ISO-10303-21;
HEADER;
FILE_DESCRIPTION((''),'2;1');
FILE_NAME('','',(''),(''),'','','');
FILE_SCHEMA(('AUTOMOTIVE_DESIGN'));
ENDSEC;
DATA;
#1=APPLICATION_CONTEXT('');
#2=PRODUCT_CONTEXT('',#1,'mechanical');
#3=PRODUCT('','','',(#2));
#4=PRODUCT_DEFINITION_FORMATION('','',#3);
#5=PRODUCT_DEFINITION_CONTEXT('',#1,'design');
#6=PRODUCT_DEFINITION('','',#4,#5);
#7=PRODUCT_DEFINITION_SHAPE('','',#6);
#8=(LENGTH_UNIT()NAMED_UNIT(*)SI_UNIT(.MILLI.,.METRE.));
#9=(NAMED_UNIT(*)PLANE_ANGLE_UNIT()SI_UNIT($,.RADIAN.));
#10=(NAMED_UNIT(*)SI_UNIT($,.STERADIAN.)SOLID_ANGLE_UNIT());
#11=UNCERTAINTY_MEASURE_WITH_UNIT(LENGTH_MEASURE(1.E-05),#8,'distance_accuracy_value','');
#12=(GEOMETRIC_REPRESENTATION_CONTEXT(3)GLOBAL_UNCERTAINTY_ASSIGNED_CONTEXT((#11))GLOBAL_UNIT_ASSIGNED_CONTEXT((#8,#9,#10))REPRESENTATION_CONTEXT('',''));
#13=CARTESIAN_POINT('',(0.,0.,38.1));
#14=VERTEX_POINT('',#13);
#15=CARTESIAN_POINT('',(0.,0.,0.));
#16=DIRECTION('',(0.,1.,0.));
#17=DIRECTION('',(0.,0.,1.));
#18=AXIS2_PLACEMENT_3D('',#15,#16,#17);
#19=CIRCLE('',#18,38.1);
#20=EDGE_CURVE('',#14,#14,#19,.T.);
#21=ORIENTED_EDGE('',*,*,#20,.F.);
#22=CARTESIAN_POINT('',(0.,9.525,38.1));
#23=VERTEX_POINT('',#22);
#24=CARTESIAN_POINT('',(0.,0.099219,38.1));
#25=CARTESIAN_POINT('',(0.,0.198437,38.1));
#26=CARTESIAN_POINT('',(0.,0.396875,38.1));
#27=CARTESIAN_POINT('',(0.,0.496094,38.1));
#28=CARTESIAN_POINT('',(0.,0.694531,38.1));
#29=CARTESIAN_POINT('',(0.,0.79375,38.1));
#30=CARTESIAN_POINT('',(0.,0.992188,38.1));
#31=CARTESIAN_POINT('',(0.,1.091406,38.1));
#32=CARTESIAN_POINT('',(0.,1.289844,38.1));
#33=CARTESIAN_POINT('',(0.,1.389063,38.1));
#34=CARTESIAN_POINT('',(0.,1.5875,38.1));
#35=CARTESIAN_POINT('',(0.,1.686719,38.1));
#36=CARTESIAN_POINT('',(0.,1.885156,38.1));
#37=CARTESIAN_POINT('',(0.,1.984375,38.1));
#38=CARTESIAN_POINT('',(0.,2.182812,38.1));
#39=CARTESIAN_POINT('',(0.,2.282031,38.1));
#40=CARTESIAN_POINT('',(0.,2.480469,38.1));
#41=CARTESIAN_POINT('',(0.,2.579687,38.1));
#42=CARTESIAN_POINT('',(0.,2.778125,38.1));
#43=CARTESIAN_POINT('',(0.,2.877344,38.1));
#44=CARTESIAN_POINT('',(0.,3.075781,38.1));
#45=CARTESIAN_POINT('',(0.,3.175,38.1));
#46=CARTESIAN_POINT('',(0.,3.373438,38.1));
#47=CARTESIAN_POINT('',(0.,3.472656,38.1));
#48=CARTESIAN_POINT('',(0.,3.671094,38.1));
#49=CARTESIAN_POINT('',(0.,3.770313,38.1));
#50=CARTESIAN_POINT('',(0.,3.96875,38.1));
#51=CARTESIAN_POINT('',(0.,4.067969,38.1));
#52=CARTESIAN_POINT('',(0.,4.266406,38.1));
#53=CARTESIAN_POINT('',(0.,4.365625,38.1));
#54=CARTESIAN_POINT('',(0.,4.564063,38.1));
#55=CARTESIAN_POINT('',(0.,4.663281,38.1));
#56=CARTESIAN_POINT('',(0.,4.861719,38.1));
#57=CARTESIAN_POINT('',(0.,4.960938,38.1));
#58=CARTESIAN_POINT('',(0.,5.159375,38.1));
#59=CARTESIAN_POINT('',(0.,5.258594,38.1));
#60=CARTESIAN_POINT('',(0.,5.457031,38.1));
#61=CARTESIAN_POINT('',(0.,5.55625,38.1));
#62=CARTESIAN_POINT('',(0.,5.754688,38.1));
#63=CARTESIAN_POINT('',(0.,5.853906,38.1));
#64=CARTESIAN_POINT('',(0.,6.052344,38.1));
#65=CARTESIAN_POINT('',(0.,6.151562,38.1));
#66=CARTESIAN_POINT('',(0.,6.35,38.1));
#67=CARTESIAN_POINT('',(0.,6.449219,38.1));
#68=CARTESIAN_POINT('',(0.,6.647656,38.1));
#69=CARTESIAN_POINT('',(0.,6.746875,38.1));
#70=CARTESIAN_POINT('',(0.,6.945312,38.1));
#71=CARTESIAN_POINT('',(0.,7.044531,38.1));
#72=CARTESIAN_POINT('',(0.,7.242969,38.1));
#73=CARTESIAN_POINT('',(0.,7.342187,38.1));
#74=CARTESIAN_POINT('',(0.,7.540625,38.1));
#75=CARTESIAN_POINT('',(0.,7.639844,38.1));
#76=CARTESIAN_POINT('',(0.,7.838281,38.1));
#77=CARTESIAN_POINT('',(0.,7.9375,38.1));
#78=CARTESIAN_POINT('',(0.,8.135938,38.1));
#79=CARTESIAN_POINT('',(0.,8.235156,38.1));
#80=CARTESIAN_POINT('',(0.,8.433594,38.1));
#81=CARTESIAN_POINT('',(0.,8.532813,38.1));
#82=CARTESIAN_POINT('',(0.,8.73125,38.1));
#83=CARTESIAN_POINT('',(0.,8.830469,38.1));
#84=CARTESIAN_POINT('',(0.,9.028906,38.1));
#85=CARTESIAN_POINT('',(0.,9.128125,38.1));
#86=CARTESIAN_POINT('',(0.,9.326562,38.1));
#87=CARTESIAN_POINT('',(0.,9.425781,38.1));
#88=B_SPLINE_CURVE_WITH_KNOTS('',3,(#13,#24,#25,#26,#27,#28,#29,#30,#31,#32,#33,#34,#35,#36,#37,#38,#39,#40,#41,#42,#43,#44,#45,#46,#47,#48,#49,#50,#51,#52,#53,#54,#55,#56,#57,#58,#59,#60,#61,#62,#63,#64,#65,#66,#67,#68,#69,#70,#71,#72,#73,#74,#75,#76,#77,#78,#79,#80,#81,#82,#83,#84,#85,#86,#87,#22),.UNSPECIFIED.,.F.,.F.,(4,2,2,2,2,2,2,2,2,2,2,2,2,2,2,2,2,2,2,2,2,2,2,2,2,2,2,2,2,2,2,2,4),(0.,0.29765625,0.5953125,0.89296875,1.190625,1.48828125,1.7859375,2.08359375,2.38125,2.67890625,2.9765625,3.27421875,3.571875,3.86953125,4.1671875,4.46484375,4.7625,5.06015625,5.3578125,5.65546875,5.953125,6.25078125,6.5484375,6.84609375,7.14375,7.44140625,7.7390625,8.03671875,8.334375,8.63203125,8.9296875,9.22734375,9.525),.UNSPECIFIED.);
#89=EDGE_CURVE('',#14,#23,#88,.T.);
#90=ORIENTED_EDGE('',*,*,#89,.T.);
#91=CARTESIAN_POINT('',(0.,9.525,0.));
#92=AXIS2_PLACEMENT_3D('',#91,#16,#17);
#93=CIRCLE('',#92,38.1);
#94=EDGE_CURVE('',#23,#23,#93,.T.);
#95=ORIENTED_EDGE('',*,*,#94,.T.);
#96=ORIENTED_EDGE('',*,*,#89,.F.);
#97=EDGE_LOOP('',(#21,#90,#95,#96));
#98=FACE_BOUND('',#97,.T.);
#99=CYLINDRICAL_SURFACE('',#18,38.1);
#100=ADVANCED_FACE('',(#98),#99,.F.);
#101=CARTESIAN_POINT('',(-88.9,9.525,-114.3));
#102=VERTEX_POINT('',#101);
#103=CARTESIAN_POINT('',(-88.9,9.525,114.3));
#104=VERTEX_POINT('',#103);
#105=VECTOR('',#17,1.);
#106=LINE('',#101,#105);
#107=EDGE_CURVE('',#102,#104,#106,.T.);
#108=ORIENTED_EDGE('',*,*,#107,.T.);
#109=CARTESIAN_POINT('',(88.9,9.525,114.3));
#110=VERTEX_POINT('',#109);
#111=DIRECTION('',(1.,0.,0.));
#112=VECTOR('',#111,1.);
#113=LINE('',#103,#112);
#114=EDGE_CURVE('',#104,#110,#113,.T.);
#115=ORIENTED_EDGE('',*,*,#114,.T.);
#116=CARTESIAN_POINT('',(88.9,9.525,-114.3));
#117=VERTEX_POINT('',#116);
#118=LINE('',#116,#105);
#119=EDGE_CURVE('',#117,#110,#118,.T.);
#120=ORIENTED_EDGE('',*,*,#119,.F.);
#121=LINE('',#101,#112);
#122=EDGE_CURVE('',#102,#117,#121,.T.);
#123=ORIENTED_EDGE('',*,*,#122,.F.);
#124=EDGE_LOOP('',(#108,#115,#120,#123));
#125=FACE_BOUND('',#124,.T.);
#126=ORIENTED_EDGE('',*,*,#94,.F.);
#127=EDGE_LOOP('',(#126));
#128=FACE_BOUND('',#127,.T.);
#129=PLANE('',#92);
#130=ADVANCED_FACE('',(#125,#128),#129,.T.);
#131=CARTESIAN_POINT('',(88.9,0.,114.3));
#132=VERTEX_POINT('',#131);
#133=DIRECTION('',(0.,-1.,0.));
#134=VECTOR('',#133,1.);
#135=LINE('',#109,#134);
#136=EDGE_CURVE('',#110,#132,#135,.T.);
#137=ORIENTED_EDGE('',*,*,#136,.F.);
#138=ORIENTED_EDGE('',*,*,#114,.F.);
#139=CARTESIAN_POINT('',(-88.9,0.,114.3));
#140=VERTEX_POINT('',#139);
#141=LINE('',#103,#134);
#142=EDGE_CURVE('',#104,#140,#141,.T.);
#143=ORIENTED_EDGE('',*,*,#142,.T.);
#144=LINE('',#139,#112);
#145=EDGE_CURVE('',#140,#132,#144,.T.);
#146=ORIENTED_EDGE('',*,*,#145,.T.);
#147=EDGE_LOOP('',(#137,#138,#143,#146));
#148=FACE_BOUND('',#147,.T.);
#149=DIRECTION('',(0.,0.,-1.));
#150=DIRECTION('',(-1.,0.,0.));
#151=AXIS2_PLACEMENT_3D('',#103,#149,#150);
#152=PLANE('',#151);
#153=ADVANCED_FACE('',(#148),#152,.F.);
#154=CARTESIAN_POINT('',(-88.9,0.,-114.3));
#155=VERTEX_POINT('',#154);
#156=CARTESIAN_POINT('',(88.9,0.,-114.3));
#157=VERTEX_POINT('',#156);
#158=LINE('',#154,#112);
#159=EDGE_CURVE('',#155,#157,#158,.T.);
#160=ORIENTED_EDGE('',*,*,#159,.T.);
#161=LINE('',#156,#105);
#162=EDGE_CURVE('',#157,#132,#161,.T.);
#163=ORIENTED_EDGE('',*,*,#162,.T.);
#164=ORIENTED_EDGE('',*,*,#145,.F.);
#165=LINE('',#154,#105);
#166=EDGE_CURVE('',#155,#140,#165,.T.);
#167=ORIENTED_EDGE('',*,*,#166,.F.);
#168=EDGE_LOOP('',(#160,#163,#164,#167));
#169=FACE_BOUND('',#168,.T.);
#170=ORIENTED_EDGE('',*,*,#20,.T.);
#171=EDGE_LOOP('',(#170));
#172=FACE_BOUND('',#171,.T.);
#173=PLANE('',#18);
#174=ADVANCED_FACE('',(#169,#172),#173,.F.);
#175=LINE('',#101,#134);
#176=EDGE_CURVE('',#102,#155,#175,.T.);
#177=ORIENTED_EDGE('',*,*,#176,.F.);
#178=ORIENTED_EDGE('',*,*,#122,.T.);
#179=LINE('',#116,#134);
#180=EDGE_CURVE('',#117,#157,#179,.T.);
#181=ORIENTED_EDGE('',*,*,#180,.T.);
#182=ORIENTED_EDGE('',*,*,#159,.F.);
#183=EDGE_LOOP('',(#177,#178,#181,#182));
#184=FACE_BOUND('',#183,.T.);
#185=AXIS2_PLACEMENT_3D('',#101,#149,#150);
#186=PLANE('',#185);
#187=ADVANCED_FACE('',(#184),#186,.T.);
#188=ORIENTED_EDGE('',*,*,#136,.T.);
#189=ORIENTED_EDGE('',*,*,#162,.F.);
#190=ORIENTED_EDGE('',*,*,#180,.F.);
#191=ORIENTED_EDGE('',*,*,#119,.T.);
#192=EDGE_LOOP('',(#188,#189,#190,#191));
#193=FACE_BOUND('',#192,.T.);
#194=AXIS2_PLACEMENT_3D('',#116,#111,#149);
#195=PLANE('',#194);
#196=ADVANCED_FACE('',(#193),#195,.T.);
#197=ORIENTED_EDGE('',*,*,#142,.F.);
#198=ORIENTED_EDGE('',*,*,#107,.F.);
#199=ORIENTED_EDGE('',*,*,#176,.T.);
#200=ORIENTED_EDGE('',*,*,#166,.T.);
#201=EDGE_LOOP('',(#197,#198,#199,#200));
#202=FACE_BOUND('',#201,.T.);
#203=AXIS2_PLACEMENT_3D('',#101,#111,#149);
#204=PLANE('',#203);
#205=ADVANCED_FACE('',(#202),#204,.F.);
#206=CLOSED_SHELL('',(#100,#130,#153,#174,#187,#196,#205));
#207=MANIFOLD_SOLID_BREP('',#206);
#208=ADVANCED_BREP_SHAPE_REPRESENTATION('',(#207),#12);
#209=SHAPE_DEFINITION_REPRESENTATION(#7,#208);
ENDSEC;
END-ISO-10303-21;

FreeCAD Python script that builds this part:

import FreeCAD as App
import Part
import Sketcher
Q = App.Units.Quantity


def add_polygon(sketch, points):
    """Adds a closed chain of lines whose ends are joined by coincident constraints."""
    first, n = sketch.GeometryCount, len(points)
    for a, b in zip(points, points[1:] + points[:1]):
        sketch.addGeometry(Part.LineSegment(App.Vector(*a, 0), App.Vector(*b, 0)), False)
    for i in range(n):
        sketch.addConstraint(Sketcher.Constraint("Coincident", first + i, 2, first + (i + 1) % n, 1))

doc = App.newDocument("Part")
body = doc.addObject("PartDesign::Body", "Body")

# Sketch on XZ plane
sketch1 = body.newObject("Sketcher::SketchObject", "Sketch")
sketch1.AttachmentSupport = (doc.getObject("XZ_Plane"), [""])
sketch1.MapMode = "FlatFace"
add_polygon(sketch1, [(-89, -114), (-89, 114), (89, 114), (89, -114)])  # lines 0-3
sketch1.addConstraint([
    Sketcher.Constraint("Vertical", 0),
    Sketcher.Constraint("Horizontal", 1),
    Sketcher.Constraint("Vertical", 2),
    Sketcher.Constraint("Horizontal", 3),
    Sketcher.Constraint("Symmetric", 0, 2, 2, 2, -1, 1),
    Sketcher.Constraint("DistanceX", 1, 1, 1, 2, Q("7 in")),
    Sketcher.Constraint("DistanceY", 0, 1, 0, 2, Q("9 in")),
])
pad1 = body.newObject("PartDesign::Pad", "Pad")
pad1.Profile = sketch1
pad1.Length = Q("0.375 in")
pad1.Reversed = True

# Sketch on XZ plane
sketch2 = body.newObject("Sketcher::SketchObject", "Sketch001")
sketch2.AttachmentSupport = (doc.getObject("XZ_Plane"), [""])
sketch2.MapMode = "FlatFace"
sketch2.AttachmentOffset = App.Placement(App.Vector(0, 0, -0.375 * 25.4), App.Rotation())
sketch2.addGeometry(Part.Circle(App.Vector(0, 0, 0), App.Vector(0, 0, 1), 38), False)
sketch2.addConstraint([
    Sketcher.Constraint("Coincident", 0, 3, -1, 1),
    Sketcher.Constraint("Diameter", 0, Q("3 in")),
])
pocket1 = body.newObject("PartDesign::Pocket", "Pocket")
pocket1.Profile = sketch2
pocket1.Type = "ThroughAll"
pocket1.Reversed = True

doc.recompute()
